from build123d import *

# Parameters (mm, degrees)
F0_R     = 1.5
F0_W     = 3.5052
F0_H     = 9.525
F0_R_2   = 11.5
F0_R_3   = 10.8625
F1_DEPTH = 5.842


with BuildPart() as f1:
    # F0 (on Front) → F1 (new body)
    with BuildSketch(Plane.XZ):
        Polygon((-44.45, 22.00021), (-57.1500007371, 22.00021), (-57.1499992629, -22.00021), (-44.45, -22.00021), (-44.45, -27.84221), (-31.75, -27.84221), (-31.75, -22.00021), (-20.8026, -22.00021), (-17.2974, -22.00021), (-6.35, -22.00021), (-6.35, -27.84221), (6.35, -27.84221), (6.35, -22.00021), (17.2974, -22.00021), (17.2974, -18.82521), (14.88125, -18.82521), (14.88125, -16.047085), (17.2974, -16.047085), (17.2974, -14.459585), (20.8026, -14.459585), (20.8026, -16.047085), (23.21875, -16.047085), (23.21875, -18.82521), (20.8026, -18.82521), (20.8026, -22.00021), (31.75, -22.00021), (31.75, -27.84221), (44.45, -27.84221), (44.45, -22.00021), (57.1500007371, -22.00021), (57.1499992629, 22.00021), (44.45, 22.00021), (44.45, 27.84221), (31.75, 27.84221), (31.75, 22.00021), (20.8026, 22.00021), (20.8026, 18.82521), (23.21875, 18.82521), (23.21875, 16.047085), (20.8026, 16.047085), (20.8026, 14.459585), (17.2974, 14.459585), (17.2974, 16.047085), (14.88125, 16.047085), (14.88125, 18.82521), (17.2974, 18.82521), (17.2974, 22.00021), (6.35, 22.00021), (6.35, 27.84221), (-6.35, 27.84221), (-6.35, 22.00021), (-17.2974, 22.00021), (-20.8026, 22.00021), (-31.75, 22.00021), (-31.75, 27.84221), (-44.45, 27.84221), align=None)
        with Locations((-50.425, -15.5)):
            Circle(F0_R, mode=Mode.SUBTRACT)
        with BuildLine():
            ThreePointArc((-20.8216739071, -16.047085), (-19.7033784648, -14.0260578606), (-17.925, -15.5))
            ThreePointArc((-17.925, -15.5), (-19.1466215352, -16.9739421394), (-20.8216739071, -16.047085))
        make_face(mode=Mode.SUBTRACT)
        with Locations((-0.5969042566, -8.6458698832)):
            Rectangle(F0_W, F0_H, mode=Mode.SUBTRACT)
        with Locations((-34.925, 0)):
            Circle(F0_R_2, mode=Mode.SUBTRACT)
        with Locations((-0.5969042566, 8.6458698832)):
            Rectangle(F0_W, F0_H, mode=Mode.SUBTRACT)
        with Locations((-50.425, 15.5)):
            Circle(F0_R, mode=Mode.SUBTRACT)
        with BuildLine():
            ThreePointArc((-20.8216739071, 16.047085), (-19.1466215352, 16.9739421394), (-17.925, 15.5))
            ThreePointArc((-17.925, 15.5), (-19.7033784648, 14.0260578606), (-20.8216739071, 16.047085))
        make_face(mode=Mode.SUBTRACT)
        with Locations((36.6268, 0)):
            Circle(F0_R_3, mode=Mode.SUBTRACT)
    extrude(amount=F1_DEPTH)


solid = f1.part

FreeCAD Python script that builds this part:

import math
import FreeCAD as App
import Part
import Sketcher
from FreeCAD import Vector
Q = App.Units.Quantity


def add_polygon(sketch, points):
    """Adds a closed chain of lines whose ends are joined by coincident constraints."""
    first, n = sketch.GeometryCount, len(points)
    for a, b in zip(points, points[1:] + points[:1]):
        sketch.addGeometry(Part.LineSegment(App.Vector(*a, 0), App.Vector(*b, 0)), False)
    for i in range(n):
        sketch.addConstraint(Sketcher.Constraint("Coincident", first + i, 2, first + (i + 1) % n, 1))

doc = App.newDocument("Part")
body = doc.addObject("PartDesign::Body", "Body")

sketch1 = doc.addObject("Sketcher::SketchObject", "Sketch")
body.addObject(sketch1)
sketch1.AttachmentSupport = (doc.XZ_Plane, [""])
sketch1.MapMode = "FlatFace"
add_polygon(sketch1, [(-44.5, 22), (-57.2, 22), (-57.1, -22), (-44.5, -22), (-44.5, -27.8), (-31.8, -27.8), (-31.8, -22), (-6.3, -22), (-6.3, -27.8), (6.3, -27.8), (6.3, -22), (17.3, -22), (17.3, -18.8), (14.9, -18.8), (14.9, -16), (17.3, -16), (17.3, -14.5), (20.8, -14.5), (20.8, -16), (23.2, -16), (23.2, -18.8), (20.8, -18.8), (20.8, -22), (31.8, -22), (31.8, -27.8), (44.5, -27.8), (44.5, -22), (57.2, -22), (57.1, 22), (44.5, 22), (44.5, 27.8), (31.8, 27.8), (31.8, 22), (20.8, 22), (20.8, 18.8), (23.2, 18.8), (23.2, 16), (20.8, 16), (20.8, 14.5), (17.3, 14.5), (17.3, 16), (14.9, 16), (14.9, 18.8), (17.3, 18.8), (17.3, 22), (6.3, 22), (6.3, 27.8), (-6.3, 27.8), (-6.3, 22), (-31.8, 22), (-31.8, 27.8), (-44.5, 27.8)])
sketch1.addGeometry(Part.Circle(Vector(-50.4, -15.5, 0), Vector(0, 0, 1), 1.5), False)
sketch1.addGeometry(Part.ArcOfCircle(Part.Circle(Vector(-19.4, -15.5, 0), Vector(0, 0, 1), 1.5), math.radians(-159), math.radians(0)), False)
sketch1.addGeometry(Part.ArcOfCircle(Part.Circle(Vector(-19.4, -15.5, 0), Vector(0, 0, 1), 1.5), math.radians(0), math.radians(201)), False)
add_polygon(sketch1, [(1.2, -13.4), (-2.3, -13.4), (-2.3, -3.9), (1.2, -3.9)])
sketch1.addGeometry(Part.Circle(Vector(-34.9, 0, 0), Vector(0, 0, 1), 11.5), False)
sketch1.addGeometry(Part.Circle(Vector(-50.4, 15.5, 0), Vector(0, 0, 1), 1.5), False)
sketch1.addGeometry(Part.ArcOfCircle(Part.Circle(Vector(-19.4, 15.5, 0), Vector(0, 0, 1), 1.5), math.radians(159), math.radians(360)), False)
sketch1.addGeometry(Part.ArcOfCircle(Part.Circle(Vector(-19.4, 15.5, 0), Vector(0, 0, 1), 1.5), math.radians(0), math.radians(159)), False)
sketch1.addGeometry(Part.Circle(Vector(36.6, 0, 0), Vector(0, 0, 1), 10.9), False)
add_polygon(sketch1, [(1.2, 3.9), (-2.3, 3.9), (-2.3, 13.4), (1.2, 13.4)])
sketch1.addConstraint([
    Sketcher.Constraint("Tangent", 53, 1, 54, 2),
    Sketcher.Constraint("Coincident", 54, 1, 53, 2),
    Sketcher.Constraint("Tangent", 61, 1, 62, 2),
    Sketcher.Constraint("Coincident", 62, 1, 61, 2),
    Sketcher.Constraint("Horizontal", 0),
    Sketcher.Constraint("Vertical", 1),
    Sketcher.Constraint("Horizontal", 2),
    Sketcher.Constraint("Vertical", 3),
    Sketcher.Constraint("Horizontal", 4),
    Sketcher.Constraint("Vertical", 5),
    Sketcher.Constraint("Horizontal", 6),
    Sketcher.Constraint("Vertical", 7),
    Sketcher.Constraint("Horizontal", 8),
    Sketcher.Constraint("Vertical", 9),
    Sketcher.Constraint("Horizontal", 10),
    Sketcher.Constraint("Vertical", 11),
    Sketcher.Constraint("Horizontal", 12),
    Sketcher.Constraint("Vertical", 13),
    Sketcher.Constraint("Horizontal", 14),
    Sketcher.Constraint("Vertical", 15),
    Sketcher.Constraint("Horizontal", 16),
    Sketcher.Constraint("Vertical", 17),
    Sketcher.Constraint("Horizontal", 18),
    Sketcher.Constraint("Vertical", 19),
    Sketcher.Constraint("Horizontal", 20),
    Sketcher.Constraint("Vertical", 21),
    Sketcher.Constraint("Horizontal", 22),
    Sketcher.Constraint("Vertical", 23),
    Sketcher.Constraint("Horizontal", 24),
    Sketcher.Constraint("Vertical", 25),
    Sketcher.Constraint("Horizontal", 26),
    Sketcher.Constraint("Vertical", 27),
    Sketcher.Constraint("Horizontal", 28),
    Sketcher.Constraint("Vertical", 29),
    Sketcher.Constraint("Horizontal", 30),
    Sketcher.Constraint("Vertical", 31),
    Sketcher.Constraint("Horizontal", 32),
    Sketcher.Constraint("Vertical", 33),
    Sketcher.Constraint("Horizontal", 34),
    Sketcher.Constraint("Vertical", 35),
    Sketcher.Constraint("Horizontal", 36),
    Sketcher.Constraint("Vertical", 37),
    Sketcher.Constraint("Horizontal", 38),
    Sketcher.Constraint("Vertical", 39),
    Sketcher.Constraint("Horizontal", 40),
    Sketcher.Constraint("Vertical", 41),
    Sketcher.Constraint("Horizontal", 42),
    Sketcher.Constraint("Vertical", 43),
    Sketcher.Constraint("Horizontal", 44),
    Sketcher.Constraint("Vertical", 45),
    Sketcher.Constraint("Horizontal", 46),
    Sketcher.Constraint("Vertical", 47),
    Sketcher.Constraint("Horizontal", 48),
    Sketcher.Constraint("Vertical", 49),
    Sketcher.Constraint("Horizontal", 50),
    Sketcher.Constraint("Vertical", 51),
    Sketcher.Constraint("Horizontal", 55),
    Sketcher.Constraint("Vertical", 56),
    Sketcher.Constraint("Horizontal", 57),
    Sketcher.Constraint("Vertical", 58),
    Sketcher.Constraint("Horizontal", 64),
    Sketcher.Constraint("Vertical", 65),
    Sketcher.Constraint("Horizontal", 66),
    Sketcher.Constraint("Vertical", 67),
    Sketcher.Constraint("Equal", 52, 53),
    Sketcher.Constraint("Equal", 54, 60),
    Sketcher.Constraint("Equal", 60, 61),
    Sketcher.Constraint("Symmetric", 0, 2, 26, 2, -1, 1),
    Sketcher.Constraint("Symmetric", 2, 2, 28, 2, -1, 1),
    Sketcher.Constraint("Symmetric", 4, 2, 30, 2, -1, 1),
    Sketcher.Constraint("Symmetric", 6, 2, 44, 2, -1, 1),
    Sketcher.Constraint("Symmetric", 8, 2, 46, 2, -1, 1),
    Sketcher.Constraint("Symmetric", 22, 2, 48, 2, -1, 1),
    Sketcher.Constraint("Symmetric", 24, 2, 50, 2, -1, 1),
    Sketcher.Constraint("Symmetric", 6, 2, 9, 2, -2),
    Sketcher.Constraint("Symmetric", 5, 2, 22, 2, -2),
    Sketcher.Constraint("Symmetric", 3, 2, 24, 2, -2),
    Sketcher.Constraint("Symmetric", 52, 3, 60, 3, -1),
    Sketcher.Constraint("Symmetric", 53, 3, 61, 3, -1),
    Sketcher.Constraint("Symmetric", 21, 2, 32, 2, -1),
    Sketcher.Constraint("Symmetric", 19, 2, 34, 2, -1),
    Sketcher.Constraint("Symmetric", 17, 2, 36, 2, -1),
    Sketcher.Constraint("Symmetric", 15, 2, 38, 2, -1),
    Sketcher.Constraint("Symmetric", 13, 2, 40, 2, -1),
    Sketcher.Constraint("Symmetric", 11, 2, 42, 2, -1),
    Sketcher.Constraint("Symmetric", 56, 2, 64, 2, -1),
    Sketcher.Constraint("Symmetric", 58, 2, 66, 2, -1),
    Sketcher.Constraint("PointOnObject", 59, 3, -1),
    Sketcher.Constraint("PointOnObject", 63, 3, -1),
    Sketcher.Constraint("Horizontal", 52, 3, 53, 3),
    Sketcher.Constraint("Horizontal", 2, 2, 5, 2),
    Sketcher.Constraint("Horizontal", 4, 2, 7, 2),
    Sketcher.Constraint("Horizontal", 14, 2, 17, 2),
    Sketcher.Constraint("Horizontal", 12, 2, 19, 2),
    Sketcher.Constraint("Horizontal", 22, 2, 25, 2),
    Sketcher.Constraint("Horizontal", 18, 2, 53, 1),
    Sketcher.Constraint("Horizontal", 53, 3, 54, 1),
    Sketcher.Constraint("Horizontal", 40, 2, 61, 1),
    Sketcher.Constraint("Horizontal", 61, 3, 62, 1),
    Sketcher.Constraint("Vertical", 11, 2, 14, 2),
    Sketcher.Constraint("Vertical", 17, 2, 20, 2),
    Sketcher.Constraint("Equal", 2, 4),
    Sketcher.Constraint("Equal", 4, 8),
    Sketcher.Constraint("Equal", 14, 18),
    Sketcher.Constraint("Equal", 10, 22),
    Sketcher.Constraint("Equal", 38, 55),
    Sketcher.Constraint("DistanceX", 6, 1, 6, 2, Q("1 in")),
    Sketcher.Constraint("DistanceX", 0, 2, 0, 1, Q("0.5 in")),
    Sketcher.Constraint("DistanceY", 3, 2, 3, 1, Q("0.23 in")),
    Sketcher.Constraint("Diameter", 52, 3.0),
    Sketcher.Constraint("Diameter", 59, 23.0),
    Sketcher.Constraint("Diameter", 63, 21.725),
    Sketcher.Constraint("DistanceX", 10, 1, 10, 2, Q("0.431 in")),
    Sketcher.Constraint("DistanceY", 11, 1, 11, 2, Q("0.125 in")),
    Sketcher.Constraint("DistanceY", 13, 1, 13, 2, Q("0.109375 in")),
    Sketcher.Constraint("DistanceY", 15, 1, 15, 2, Q("0.0625 in")),
    Sketcher.Constraint("DistanceY", 56, 1, 56, 2, Q("0.375 in")),
    Sketcher.Constraint("DistanceY", 1, 2, 1, 1, Q("1.7323 in")),
    Sketcher.Constraint("DistanceX", 59, 3, -1, 1, Q("1.375 in")),
    Sketcher.Constraint("DistanceX", -1, 1, 63, 3, Q("1.442 in")),
    Sketcher.Constraint("DistanceX", 55, 2, -1, 1, Q("0.0925002 in")),
    Sketcher.Constraint("DistanceX", 12, 2, 12, 1, 2.41615),
    Sketcher.Constraint("DistanceX", 52, 3, -1, 1, 50.425),
    Sketcher.Constraint("DistanceY", 52, 3, -1, 1, 15.5),
    Sketcher.Constraint("DistanceX", 53, 3, -1, 1, 19.425),
    Sketcher.Constraint("DistanceY", 55, 2, -1, 1, 13.40837),
])
pad1 = doc.addObject("PartDesign::Pad", "Pad")
body.addObject(pad1)
pad1.Profile = sketch1
pad1.Length = Q("0.23 in")

doc.recompute()
